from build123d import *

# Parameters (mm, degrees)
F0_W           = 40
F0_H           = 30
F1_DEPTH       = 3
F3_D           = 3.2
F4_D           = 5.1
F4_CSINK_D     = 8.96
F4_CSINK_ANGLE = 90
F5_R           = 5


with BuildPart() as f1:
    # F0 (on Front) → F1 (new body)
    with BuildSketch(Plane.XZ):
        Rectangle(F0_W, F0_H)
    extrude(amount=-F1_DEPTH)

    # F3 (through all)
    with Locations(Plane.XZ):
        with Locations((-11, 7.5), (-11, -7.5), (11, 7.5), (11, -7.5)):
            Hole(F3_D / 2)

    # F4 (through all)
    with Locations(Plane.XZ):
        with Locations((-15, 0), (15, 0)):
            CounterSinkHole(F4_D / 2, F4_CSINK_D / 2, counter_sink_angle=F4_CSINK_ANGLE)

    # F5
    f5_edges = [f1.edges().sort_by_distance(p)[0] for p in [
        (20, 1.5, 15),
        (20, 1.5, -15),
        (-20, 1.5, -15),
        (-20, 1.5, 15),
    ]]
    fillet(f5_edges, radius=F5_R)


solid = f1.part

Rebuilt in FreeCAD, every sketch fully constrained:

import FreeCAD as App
import Part
import Sketcher
Q = App.Units.Quantity


def edges_at(feature, points):
    """Names of the edges that pass closest to the given points."""
    edges = feature.Shape.Edges
    near = lambda p: min(range(len(edges)), key=lambda i: edges[i].distToShape(Part.Vertex(*p))[0])
    return sorted({f"Edge{near(p) + 1}" for p in points})


def add_polygon(sketch, points):
    """Adds a closed chain of lines whose ends are joined by coincident constraints."""
    first, n = sketch.GeometryCount, len(points)
    for a, b in zip(points, points[1:] + points[:1]):
        sketch.addGeometry(Part.LineSegment(App.Vector(*a, 0), App.Vector(*b, 0)), False)
    for i in range(n):
        sketch.addConstraint(Sketcher.Constraint("Coincident", first + i, 2, first + (i + 1) % n, 1))

doc = App.newDocument("Part")
params = doc.addObject("Spreadsheet::Sheet", "Params")
for row, (alias, value) in enumerate([
    ("sketch1_width", "40 mm"),
    ("sketch1_height", "30 mm"),
    ("pad1_length", "3 mm"),
    ("sketch2_diameter", "3.2 mm"),
    ("hole_diameter", "3.2 mm"),
    ("sketch3_diameter", "5.1 mm"),
    ("hole2_diameter", "5.1 mm"),
    ("hole2_csink_diameter", "8.96 mm"),
    ("fillet_radius", "5 mm"),
], start=1):
    params.set(f"A{row}", alias)
    params.set(f"B{row}", "=" + value)
    params.setAlias(f"B{row}", alias)

body = doc.addObject("PartDesign::Body", "Body")

# Sketch on XZ plane
sketch1 = body.newObject("Sketcher::SketchObject", "Sketch")
sketch1.AttachmentSupport = (doc.getObject("XZ_Plane"), [""])
sketch1.MapMode = "FlatFace"
add_polygon(sketch1, [(-20, 15), (-20, -15), (20, -15), (20, 15)])  # lines 0-3
sketch1.addConstraint(Sketcher.Constraint("Vertical", 0))
sketch1.addConstraint(Sketcher.Constraint("Horizontal", 1))
sketch1.addConstraint(Sketcher.Constraint("Vertical", 2))
sketch1.addConstraint(Sketcher.Constraint("Horizontal", 3))
sketch1.addConstraint(Sketcher.Constraint("Symmetric", 0, 2, 2, 2, -1, 1))
sketch1.addConstraint(Sketcher.Constraint("DistanceX", 1, 1, 1, 2, Q("40 mm")))
sketch1.addConstraint(Sketcher.Constraint("DistanceY", 0, 2, 0, 1, Q("30 mm")))
sketch1.setExpression("Constraints[9]", "Params.sketch1_width")
sketch1.setExpression("Constraints[10]", "Params.sketch1_height")
pad1 = body.newObject("PartDesign::Pad", "Pad")
pad1.Profile = sketch1
pad1.setExpression("Length", "Params.pad1_length")
pad1.Reversed = True

# Sketch on XZ plane
sketch2 = body.newObject("Sketcher::SketchObject", "Sketch001")
sketch2.AttachmentSupport = (doc.getObject("XZ_Plane"), [""])
sketch2.MapMode = "FlatFace"
sketch2.addGeometry(Part.Circle(App.Vector(-11, 7.5, 0), App.Vector(0, 0, 1), 1.6), False)
sketch2.addGeometry(Part.Circle(App.Vector(-11, -7.5, 0), App.Vector(0, 0, 1), 1.6), False)
sketch2.addGeometry(Part.Circle(App.Vector(11, 7.5, 0), App.Vector(0, 0, 1), 1.6), False)
sketch2.addGeometry(Part.Circle(App.Vector(11, -7.5, 0), App.Vector(0, 0, 1), 1.6), False)
sketch2.addConstraint(Sketcher.Constraint("Equal", 0, 1))
sketch2.addConstraint(Sketcher.Constraint("Equal", 1, 2))
sketch2.addConstraint(Sketcher.Constraint("Equal", 2, 3))
sketch2.addConstraint(Sketcher.Constraint("Symmetric", 1, 3, 2, 3, -1, 1))
sketch2.addConstraint(Sketcher.Constraint("Symmetric", 0, 3, 3, 3, -1, 1))
sketch2.addConstraint(Sketcher.Constraint("Symmetric", 0, 3, 2, 3, -2))
sketch2.addConstraint(Sketcher.Constraint("Diameter", 0, Q("3.2 mm")))
sketch2.addConstraint(Sketcher.Constraint("DistanceX", 0, 3, -1, 1, Q("11 mm")))
sketch2.addConstraint(Sketcher.Constraint("DistanceY", 1, 3, 0, 3, Q("15 mm")))
sketch2.setExpression("Constraints[6]", "Params.sketch2_diameter")
doc.recompute()
hole = body.newObject("PartDesign::Hole", "Hole")
hole.Profile = sketch2
hole.ThreadType = "None"
hole.setExpression("Diameter", "Params.hole_diameter")
hole.DepthType = "ThroughAll"

# Sketch on XZ plane
sketch3 = body.newObject("Sketcher::SketchObject", "Sketch002")
sketch3.AttachmentSupport = (doc.getObject("XZ_Plane"), [""])
sketch3.MapMode = "FlatFace"
sketch3.addGeometry(Part.Circle(App.Vector(-15, 0, 0), App.Vector(0, 0, 1), 2.5), False)
sketch3.addGeometry(Part.Circle(App.Vector(15, 0, 0), App.Vector(0, 0, 1), 2.5), False)
sketch3.addConstraint(Sketcher.Constraint("Equal", 0, 1))
sketch3.addConstraint(Sketcher.Constraint("Symmetric", 0, 3, 1, 3, -1, 1))
sketch3.addConstraint(Sketcher.Constraint("PointOnObject", 0, 3, -1))
sketch3.addConstraint(Sketcher.Constraint("Diameter", 0, Q("5.1 mm")))
sketch3.addConstraint(Sketcher.Constraint("DistanceX", 0, 3, -1, 1, Q("15 mm")))
sketch3.setExpression("Constraints[3]", "Params.sketch3_diameter")
doc.recompute()
hole2 = body.newObject("PartDesign::Hole", "Hole001")
hole2.Profile = sketch3
hole2.ThreadType = "None"
hole2.setExpression("Diameter", "Params.hole2_diameter")
hole2.DepthType = "ThroughAll"
hole2.HoleCutType = "Countersink"
hole2.setExpression("HoleCutDiameter", "Params.hole2_csink_diameter")
hole2.HoleCutCountersinkAngle = 90
doc.recompute()

fillet = body.newObject("PartDesign::Fillet", "Fillet")
fillet.Base = (hole2, edges_at(hole2, [
    (20, 1.5, 15),
    (20, 1.5, -15),
    (-20, 1.5, -15),
    (-20, 1.5, 15),
]))
fillet.setExpression("Radius", "Params.fillet_radius")

doc.recompute()
